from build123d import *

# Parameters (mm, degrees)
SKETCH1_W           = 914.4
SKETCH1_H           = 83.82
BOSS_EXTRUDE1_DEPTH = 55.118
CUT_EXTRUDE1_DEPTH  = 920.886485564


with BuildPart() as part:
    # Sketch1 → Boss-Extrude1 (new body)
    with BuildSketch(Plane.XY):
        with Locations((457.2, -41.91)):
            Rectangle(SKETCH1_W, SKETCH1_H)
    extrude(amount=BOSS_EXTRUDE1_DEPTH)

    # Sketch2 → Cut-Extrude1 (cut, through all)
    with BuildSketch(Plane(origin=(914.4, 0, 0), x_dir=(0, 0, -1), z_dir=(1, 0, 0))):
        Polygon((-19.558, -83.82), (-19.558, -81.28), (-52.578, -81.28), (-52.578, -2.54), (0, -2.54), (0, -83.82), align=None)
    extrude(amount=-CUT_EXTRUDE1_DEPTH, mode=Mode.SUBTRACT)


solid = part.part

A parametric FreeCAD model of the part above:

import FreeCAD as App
import Part
import Sketcher
Q = App.Units.Quantity

doc = App.newDocument("Part")
body = doc.addObject("PartDesign::Body", "Body")

# Sketch on XY plane
sketch1 = body.newObject("Sketcher::SketchObject", "Sketch")
sketch1.AttachmentSupport = (doc.getObject("XY_Plane"), [""])
sketch1.MapMode = "FlatFace"
sketch1.addGeometry(Part.LineSegment(App.Vector(0, 0, 0), App.Vector(0, -84, 0)), False)
sketch1.addGeometry(Part.LineSegment(App.Vector(0, -84, 0), App.Vector(914, -84, 0)), False)
sketch1.addGeometry(Part.LineSegment(App.Vector(914, -84, 0), App.Vector(914, 0, 0)), False)
sketch1.addGeometry(Part.LineSegment(App.Vector(914, 0, 0), App.Vector(0, 0, 0)), False)
sketch1.addConstraint(Sketcher.Constraint("Coincident", 0, 2, 1, 1))
sketch1.addConstraint(Sketcher.Constraint("Coincident", 1, 2, 2, 1))
sketch1.addConstraint(Sketcher.Constraint("Coincident", 2, 2, 3, 1))
sketch1.addConstraint(Sketcher.Constraint("Coincident", 3, 2, 0, 1))
sketch1.addConstraint(Sketcher.Constraint("Vertical", 0))
sketch1.addConstraint(Sketcher.Constraint("Horizontal", 1))
sketch1.addConstraint(Sketcher.Constraint("Vertical", 2))
sketch1.addConstraint(Sketcher.Constraint("Horizontal", 3))
sketch1.addConstraint(Sketcher.Constraint("Coincident", 3, 2, -1, 1))
sketch1.addConstraint(Sketcher.Constraint("DistanceX", 1, 1, 1, 2, Q("36 in")))
sketch1.addConstraint(Sketcher.Constraint("DistanceY", 0, 2, 0, 1, Q("3.3 in")))
pad1 = body.newObject("PartDesign::Pad", "Pad")
pad1.Profile = sketch1
pad1.Length = Q("2.17 in")

# Sketch on YZ plane
sketch2 = body.newObject("Sketcher::SketchObject", "Sketch001")
sketch2.AttachmentSupport = (doc.getObject("YZ_Plane"), [""])
sketch2.MapMode = "FlatFace"
sketch2.AttachmentOffset = App.Placement(App.Vector(0, 0, 36 * 25.4), App.Rotation())
sketch2.addGeometry(Part.LineSegment(App.Vector(-81.3, 19.6, 0), App.Vector(-83.8, 19.6, 0)), False)
sketch2.addGeometry(Part.LineSegment(App.Vector(-83.8, 19.6, 0), App.Vector(-83.8, 0, 0)), False)
sketch2.addGeometry(Part.LineSegment(App.Vector(-83.8, 0, 0), App.Vector(-2.5, 0, 0)), False)
sketch2.addGeometry(Part.LineSegment(App.Vector(-2.5, 0, 0), App.Vector(-2.5, 52.6, 0)), False)
sketch2.addGeometry(Part.LineSegment(App.Vector(-2.5, 52.6, 0), App.Vector(-81.3, 52.6, 0)), False)
sketch2.addGeometry(Part.LineSegment(App.Vector(-81.3, 52.6, 0), App.Vector(-81.3, 19.6, 0)), False)
sketch2.addConstraint(Sketcher.Constraint("Coincident", 0, 2, 1, 1))
sketch2.addConstraint(Sketcher.Constraint("Coincident", 1, 2, 2, 1))
sketch2.addConstraint(Sketcher.Constraint("Coincident", 2, 2, 3, 1))
sketch2.addConstraint(Sketcher.Constraint("Coincident", 3, 2, 4, 1))
sketch2.addConstraint(Sketcher.Constraint("Coincident", 4, 2, 5, 1))
sketch2.addConstraint(Sketcher.Constraint("Coincident", 5, 2, 0, 1))
sketch2.addConstraint(Sketcher.Constraint("Horizontal", 0))
sketch2.addConstraint(Sketcher.Constraint("Vertical", 1))
sketch2.addConstraint(Sketcher.Constraint("Horizontal", 2))
sketch2.addConstraint(Sketcher.Constraint("Vertical", 3))
sketch2.addConstraint(Sketcher.Constraint("Horizontal", 4))
sketch2.addConstraint(Sketcher.Constraint("Vertical", 5))
sketch2.addConstraint(Sketcher.Constraint("PointOnObject", 1, 2, -1))
sketch2.addConstraint(Sketcher.Constraint("DistanceX", 0, 2, 0, 1, Q("0.1 in")))
sketch2.addConstraint(Sketcher.Constraint("DistanceX", 2, 1, 2, 2, Q("3.2 in")))
sketch2.addConstraint(Sketcher.Constraint("DistanceY", 5, 2, 5, 1, Q("1.3 in")))
sketch2.addConstraint(Sketcher.Constraint("DistanceY", 1, 2, 1, 1, Q("0.77 in")))
sketch2.addConstraint(Sketcher.Constraint("DistanceX", 0, 2, -1, 1, Q("3.3 in")))
pocket1 = body.newObject("PartDesign::Pocket", "Pocket")
pocket1.Profile = sketch2
pocket1.Type = "ThroughAll"

doc.recompute()
